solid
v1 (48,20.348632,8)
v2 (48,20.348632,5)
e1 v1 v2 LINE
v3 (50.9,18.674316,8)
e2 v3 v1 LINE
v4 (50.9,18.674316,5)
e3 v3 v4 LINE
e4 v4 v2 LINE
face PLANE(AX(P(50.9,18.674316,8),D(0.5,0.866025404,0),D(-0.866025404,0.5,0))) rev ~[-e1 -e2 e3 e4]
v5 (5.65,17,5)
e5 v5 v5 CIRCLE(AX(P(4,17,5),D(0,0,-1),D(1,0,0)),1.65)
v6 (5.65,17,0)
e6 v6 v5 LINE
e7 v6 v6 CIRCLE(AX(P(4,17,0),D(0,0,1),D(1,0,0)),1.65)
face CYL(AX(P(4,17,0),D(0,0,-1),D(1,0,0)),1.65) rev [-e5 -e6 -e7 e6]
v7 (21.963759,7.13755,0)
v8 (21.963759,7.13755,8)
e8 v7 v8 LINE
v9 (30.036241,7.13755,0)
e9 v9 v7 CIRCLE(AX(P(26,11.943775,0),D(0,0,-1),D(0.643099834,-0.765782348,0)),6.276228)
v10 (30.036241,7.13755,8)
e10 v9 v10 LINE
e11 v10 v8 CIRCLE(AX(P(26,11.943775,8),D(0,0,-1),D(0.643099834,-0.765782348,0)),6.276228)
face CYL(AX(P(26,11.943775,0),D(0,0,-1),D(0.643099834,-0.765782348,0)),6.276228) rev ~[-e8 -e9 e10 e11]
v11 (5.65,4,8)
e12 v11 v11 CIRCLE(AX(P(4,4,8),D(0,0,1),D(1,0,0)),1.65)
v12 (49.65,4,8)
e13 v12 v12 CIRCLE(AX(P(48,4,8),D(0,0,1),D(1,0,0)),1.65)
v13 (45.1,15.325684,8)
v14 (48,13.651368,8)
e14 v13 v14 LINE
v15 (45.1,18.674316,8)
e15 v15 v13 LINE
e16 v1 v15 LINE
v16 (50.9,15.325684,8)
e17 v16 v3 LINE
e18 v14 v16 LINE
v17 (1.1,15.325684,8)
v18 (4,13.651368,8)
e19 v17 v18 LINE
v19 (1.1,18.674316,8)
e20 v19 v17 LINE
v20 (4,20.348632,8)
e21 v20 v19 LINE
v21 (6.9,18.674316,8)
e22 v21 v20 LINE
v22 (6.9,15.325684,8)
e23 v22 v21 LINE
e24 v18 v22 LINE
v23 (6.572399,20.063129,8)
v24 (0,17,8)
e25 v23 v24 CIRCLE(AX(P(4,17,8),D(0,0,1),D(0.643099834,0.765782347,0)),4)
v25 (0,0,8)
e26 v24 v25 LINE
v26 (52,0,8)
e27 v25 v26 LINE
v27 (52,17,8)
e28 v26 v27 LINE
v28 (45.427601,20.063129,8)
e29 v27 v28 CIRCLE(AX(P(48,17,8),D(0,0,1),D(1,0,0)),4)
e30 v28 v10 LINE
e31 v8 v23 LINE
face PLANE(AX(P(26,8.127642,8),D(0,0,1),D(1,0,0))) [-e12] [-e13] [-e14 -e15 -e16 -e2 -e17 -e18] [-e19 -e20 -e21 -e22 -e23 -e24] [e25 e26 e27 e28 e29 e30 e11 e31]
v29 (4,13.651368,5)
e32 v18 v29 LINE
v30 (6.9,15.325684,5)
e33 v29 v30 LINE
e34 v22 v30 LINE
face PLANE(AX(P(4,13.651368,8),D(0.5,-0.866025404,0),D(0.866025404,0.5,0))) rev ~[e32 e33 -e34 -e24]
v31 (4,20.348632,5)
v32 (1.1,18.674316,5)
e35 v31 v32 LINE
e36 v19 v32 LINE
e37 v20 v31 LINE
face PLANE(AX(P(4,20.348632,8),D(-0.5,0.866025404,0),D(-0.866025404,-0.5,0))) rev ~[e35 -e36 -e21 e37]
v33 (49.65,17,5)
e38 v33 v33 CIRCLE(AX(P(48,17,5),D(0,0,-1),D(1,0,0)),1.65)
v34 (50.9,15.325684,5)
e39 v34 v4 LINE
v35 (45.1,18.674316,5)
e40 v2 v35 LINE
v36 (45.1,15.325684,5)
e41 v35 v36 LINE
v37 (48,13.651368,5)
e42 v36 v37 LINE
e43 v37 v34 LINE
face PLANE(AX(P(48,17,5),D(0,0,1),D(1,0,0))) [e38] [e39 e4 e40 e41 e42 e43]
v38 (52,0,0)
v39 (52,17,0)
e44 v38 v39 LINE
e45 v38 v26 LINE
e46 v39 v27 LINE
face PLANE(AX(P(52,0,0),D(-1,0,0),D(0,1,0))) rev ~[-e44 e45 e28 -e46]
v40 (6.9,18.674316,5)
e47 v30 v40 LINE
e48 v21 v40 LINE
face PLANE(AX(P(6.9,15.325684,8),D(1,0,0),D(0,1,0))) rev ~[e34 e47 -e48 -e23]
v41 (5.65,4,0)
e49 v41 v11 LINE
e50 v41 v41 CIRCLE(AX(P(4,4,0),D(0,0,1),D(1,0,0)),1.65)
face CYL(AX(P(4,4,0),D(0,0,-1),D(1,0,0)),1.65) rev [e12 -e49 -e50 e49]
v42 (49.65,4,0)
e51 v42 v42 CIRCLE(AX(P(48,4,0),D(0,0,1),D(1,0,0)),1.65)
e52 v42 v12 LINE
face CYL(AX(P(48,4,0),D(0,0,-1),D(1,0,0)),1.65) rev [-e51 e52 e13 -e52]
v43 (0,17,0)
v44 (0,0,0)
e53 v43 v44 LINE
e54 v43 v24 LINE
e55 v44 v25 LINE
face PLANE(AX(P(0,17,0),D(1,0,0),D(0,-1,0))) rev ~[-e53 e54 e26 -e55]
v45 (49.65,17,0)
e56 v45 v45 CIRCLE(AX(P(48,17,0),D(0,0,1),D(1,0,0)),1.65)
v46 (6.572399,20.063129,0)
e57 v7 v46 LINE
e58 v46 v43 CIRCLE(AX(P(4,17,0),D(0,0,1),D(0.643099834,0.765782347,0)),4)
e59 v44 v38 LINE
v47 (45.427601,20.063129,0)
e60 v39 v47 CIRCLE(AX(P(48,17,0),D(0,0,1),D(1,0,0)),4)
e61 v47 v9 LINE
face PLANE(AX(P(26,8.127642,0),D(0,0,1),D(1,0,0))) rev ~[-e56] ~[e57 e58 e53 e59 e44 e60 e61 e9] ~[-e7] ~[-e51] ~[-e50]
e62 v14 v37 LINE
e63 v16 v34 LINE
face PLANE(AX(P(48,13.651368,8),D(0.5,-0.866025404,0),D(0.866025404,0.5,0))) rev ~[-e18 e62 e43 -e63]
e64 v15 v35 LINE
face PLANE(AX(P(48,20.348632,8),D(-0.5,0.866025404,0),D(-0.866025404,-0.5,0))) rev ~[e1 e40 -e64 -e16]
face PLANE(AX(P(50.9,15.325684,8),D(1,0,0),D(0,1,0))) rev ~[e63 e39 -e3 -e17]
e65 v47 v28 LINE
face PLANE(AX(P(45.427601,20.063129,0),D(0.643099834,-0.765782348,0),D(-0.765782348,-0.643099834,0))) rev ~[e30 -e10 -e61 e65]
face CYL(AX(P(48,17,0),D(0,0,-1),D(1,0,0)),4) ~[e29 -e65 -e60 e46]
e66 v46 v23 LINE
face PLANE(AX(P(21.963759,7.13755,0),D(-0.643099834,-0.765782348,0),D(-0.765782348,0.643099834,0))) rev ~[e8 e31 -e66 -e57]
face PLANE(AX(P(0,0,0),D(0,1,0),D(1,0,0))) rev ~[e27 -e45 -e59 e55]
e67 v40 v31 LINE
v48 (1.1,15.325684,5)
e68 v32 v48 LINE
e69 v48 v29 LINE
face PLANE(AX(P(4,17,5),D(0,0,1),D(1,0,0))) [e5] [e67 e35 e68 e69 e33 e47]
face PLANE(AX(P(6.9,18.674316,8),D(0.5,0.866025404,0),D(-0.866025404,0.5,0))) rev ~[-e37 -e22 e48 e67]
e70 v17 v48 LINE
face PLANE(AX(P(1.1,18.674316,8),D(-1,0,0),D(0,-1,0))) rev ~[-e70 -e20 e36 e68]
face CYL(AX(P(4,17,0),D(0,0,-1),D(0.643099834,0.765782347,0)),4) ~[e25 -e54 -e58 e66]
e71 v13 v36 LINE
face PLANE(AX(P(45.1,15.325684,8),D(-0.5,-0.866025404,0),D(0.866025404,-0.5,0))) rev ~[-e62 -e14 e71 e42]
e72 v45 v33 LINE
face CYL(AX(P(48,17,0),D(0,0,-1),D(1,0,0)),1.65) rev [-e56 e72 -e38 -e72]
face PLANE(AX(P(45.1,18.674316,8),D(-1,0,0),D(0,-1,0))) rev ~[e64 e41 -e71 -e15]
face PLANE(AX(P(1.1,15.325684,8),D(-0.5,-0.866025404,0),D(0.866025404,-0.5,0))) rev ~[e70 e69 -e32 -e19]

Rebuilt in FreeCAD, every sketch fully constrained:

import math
import FreeCAD as App
import Part
import Sketcher

V = App.Vector
Q = App.Units.Quantity


def add_polygon(sketch, points):
    """Adds a closed chain of lines whose ends are joined by coincident constraints."""
    first, n = sketch.GeometryCount, len(points)
    for a, b in zip(points, points[1:] + points[:1]):
        sketch.addGeometry(Part.LineSegment(App.Vector(*a, 0), App.Vector(*b, 0)), False)
    for i in range(n):
        sketch.addConstraint(Sketcher.Constraint("Coincident", first + i, 2, first + (i + 1) % n, 1))

doc = App.newDocument("Part")
body = doc.addObject("PartDesign::Body", "Body")

sketch1 = body.newObject("Sketcher::SketchObject", "Sketch")
sketch1.AttachmentSupport = (doc.getObject("XY_Plane"), [""])
sketch1.MapMode = "FlatFace"
sketch1.addGeometry([
    Part.LineSegment(V(0, 0, 0), V(52, 0, 0)),
    Part.LineSegment(V(52, 0, 0), V(52, 17, 0)),
    Part.ArcOfCircle(Part.Circle(V(48, 17, 0), V(0, 0, 1), 4), math.radians(0), math.radians(130)),
    Part.LineSegment(V(45.4, 20.1, 0), V(30, 7.1, 0)),
    Part.ArcOfCircle(Part.Circle(V(26, 11.9, 0), V(0, 0, 1), 6.3), math.radians(-130), math.radians(-50)),
    Part.LineSegment(V(22, 7.1, 0), V(6.6, 20.1, 0)),
    Part.ArcOfCircle(Part.Circle(V(4, 17, 0), V(0, 0, 1), 4), math.radians(50), math.radians(180)),
    Part.LineSegment(V(0, 17, 0), V(0, 0, 0)),
    Part.Circle(V(4, 4, 0), V(0, 0, 1), 1.6),
    Part.Circle(V(48, 4, 0), V(0, 0, 1), 1.6),
    Part.Circle(V(4, 17, 0), V(0, 0, 1), 1.6),
    Part.Circle(V(48, 17, 0), V(0, 0, 1), 1.6),
], False)
sketch1.addConstraint([
    Sketcher.Constraint("Coincident", 0, 2, 1, 1),
    Sketcher.Constraint("Tangent", 1, 2, 2, 1),
    Sketcher.Constraint("Tangent", 2, 2, 3, 1),
    Sketcher.Constraint("Tangent", 3, 2, 4, 2),
    Sketcher.Constraint("Tangent", 4, 1, 5, 1),
    Sketcher.Constraint("Tangent", 5, 2, 6, 1),
    Sketcher.Constraint("Tangent", 6, 2, 7, 1),
    Sketcher.Constraint("Coincident", 7, 2, 0, 1),
    Sketcher.Constraint("Horizontal", 0),
    Sketcher.Constraint("Vertical", 1),
    Sketcher.Constraint("Vertical", 7),
    Sketcher.Constraint("Coincident", 7, 2, -1, 1),
    Sketcher.Constraint("Coincident", 10, 3, 6, 3),
    Sketcher.Constraint("Coincident", 11, 3, 2, 3),
    Sketcher.Constraint("Equal", 2, 6),
    Sketcher.Constraint("Equal", 8, 9),
    Sketcher.Constraint("Equal", 9, 10),
    Sketcher.Constraint("Equal", 10, 11),
    Sketcher.Constraint("Horizontal", 2, 3, 6, 3),
    Sketcher.Constraint("Horizontal", 8, 3, 9, 3),
    Sketcher.Constraint("Horizontal", 3, 2, 4, 1),
    Sketcher.Constraint("Vertical", 6, 3, 8, 3),
    Sketcher.Constraint("Vertical", 2, 3, 9, 3),
    Sketcher.Constraint("Radius", 2, Q("4 mm")),
    Sketcher.Constraint("Diameter", 8, Q("3.3 mm")),
    Sketcher.Constraint("DistanceX", 0, 1, 0, 2, Q("52 mm")),
    Sketcher.Constraint("DistanceY", 1, 1, 1, 2, Q("17 mm")),
    Sketcher.Constraint("DistanceY", -1, 1, 8, 3, Q("4 mm")),
    Sketcher.Constraint("Radius", 4, Q("6.276228 mm")),
    Sketcher.Constraint("DistanceX", -1, 1, 2, 2, Q("45.427601 mm")),
])
pad1 = body.newObject("PartDesign::Pad", "Pad")
pad1.Profile = sketch1
pad1.Length = 8

sketch2 = body.newObject("Sketcher::SketchObject", "Sketch001")
sketch2.AttachmentSupport = (doc.getObject("XY_Plane"), [""])
sketch2.MapMode = "FlatFace"
sketch2.AttachmentOffset = App.Placement(V(0, 0, 8), App.Rotation())
add_polygon(sketch2, [(4, 13.7), (6.9, 15.3), (6.9, 18.7), (4, 20.3), (1.1, 18.7), (1.1, 15.3)])
add_polygon(sketch2, [(48, 13.7), (50.9, 15.3), (50.9, 18.7), (48, 20.3), (45.1, 18.7), (45.1, 15.3)])
sketch2.addConstraint([
    Sketcher.Constraint("Vertical", 1),
    Sketcher.Constraint("Vertical", 4),
    Sketcher.Constraint("Vertical", 7),
    Sketcher.Constraint("Vertical", 10),
    Sketcher.Constraint("Parallel", 0, 3),
    Sketcher.Constraint("Parallel", 2, 5),
    Sketcher.Constraint("Parallel", 3, 6),
    Sketcher.Constraint("Parallel", 5, 8),
    Sketcher.Constraint("Parallel", 6, 9),
    Sketcher.Constraint("Parallel", 8, 11),
    Sketcher.Constraint("Horizontal", 1, 2, 3, 2),
    Sketcher.Constraint("Horizontal", 0, 2, 4, 2),
    Sketcher.Constraint("Horizontal", 4, 2, 6, 2),
    Sketcher.Constraint("Horizontal", 3, 2, 7, 2),
    Sketcher.Constraint("Horizontal", 2, 2, 8, 2),
    Sketcher.Constraint("Horizontal", 7, 2, 9, 2),
    Sketcher.Constraint("Horizontal", 6, 2, 10, 2),
    Sketcher.Constraint("Vertical", 2, 2, 5, 2),
    Sketcher.Constraint("Angle", 0, Q("30 deg")),
    Sketcher.Constraint("DistanceX", -1, 1, 2, 2, Q("4 mm")),
    Sketcher.Constraint("DistanceX", -1, 1, 8, 2, Q("48 mm")),
    Sketcher.Constraint("DistanceX", -1, 1, 0, 2, Q("6.9 mm")),
    Sketcher.Constraint("DistanceY", 1, 1, 1, 2, Q("3.348632 mm")),
    Sketcher.Constraint("DistanceY", -1, 1, 2, 2, Q("20.348632 mm")),
])
pocket1 = body.newObject("PartDesign::Pocket", "Pocket")
pocket1.Profile = sketch2
pocket1.Length = 3

doc.recompute()
